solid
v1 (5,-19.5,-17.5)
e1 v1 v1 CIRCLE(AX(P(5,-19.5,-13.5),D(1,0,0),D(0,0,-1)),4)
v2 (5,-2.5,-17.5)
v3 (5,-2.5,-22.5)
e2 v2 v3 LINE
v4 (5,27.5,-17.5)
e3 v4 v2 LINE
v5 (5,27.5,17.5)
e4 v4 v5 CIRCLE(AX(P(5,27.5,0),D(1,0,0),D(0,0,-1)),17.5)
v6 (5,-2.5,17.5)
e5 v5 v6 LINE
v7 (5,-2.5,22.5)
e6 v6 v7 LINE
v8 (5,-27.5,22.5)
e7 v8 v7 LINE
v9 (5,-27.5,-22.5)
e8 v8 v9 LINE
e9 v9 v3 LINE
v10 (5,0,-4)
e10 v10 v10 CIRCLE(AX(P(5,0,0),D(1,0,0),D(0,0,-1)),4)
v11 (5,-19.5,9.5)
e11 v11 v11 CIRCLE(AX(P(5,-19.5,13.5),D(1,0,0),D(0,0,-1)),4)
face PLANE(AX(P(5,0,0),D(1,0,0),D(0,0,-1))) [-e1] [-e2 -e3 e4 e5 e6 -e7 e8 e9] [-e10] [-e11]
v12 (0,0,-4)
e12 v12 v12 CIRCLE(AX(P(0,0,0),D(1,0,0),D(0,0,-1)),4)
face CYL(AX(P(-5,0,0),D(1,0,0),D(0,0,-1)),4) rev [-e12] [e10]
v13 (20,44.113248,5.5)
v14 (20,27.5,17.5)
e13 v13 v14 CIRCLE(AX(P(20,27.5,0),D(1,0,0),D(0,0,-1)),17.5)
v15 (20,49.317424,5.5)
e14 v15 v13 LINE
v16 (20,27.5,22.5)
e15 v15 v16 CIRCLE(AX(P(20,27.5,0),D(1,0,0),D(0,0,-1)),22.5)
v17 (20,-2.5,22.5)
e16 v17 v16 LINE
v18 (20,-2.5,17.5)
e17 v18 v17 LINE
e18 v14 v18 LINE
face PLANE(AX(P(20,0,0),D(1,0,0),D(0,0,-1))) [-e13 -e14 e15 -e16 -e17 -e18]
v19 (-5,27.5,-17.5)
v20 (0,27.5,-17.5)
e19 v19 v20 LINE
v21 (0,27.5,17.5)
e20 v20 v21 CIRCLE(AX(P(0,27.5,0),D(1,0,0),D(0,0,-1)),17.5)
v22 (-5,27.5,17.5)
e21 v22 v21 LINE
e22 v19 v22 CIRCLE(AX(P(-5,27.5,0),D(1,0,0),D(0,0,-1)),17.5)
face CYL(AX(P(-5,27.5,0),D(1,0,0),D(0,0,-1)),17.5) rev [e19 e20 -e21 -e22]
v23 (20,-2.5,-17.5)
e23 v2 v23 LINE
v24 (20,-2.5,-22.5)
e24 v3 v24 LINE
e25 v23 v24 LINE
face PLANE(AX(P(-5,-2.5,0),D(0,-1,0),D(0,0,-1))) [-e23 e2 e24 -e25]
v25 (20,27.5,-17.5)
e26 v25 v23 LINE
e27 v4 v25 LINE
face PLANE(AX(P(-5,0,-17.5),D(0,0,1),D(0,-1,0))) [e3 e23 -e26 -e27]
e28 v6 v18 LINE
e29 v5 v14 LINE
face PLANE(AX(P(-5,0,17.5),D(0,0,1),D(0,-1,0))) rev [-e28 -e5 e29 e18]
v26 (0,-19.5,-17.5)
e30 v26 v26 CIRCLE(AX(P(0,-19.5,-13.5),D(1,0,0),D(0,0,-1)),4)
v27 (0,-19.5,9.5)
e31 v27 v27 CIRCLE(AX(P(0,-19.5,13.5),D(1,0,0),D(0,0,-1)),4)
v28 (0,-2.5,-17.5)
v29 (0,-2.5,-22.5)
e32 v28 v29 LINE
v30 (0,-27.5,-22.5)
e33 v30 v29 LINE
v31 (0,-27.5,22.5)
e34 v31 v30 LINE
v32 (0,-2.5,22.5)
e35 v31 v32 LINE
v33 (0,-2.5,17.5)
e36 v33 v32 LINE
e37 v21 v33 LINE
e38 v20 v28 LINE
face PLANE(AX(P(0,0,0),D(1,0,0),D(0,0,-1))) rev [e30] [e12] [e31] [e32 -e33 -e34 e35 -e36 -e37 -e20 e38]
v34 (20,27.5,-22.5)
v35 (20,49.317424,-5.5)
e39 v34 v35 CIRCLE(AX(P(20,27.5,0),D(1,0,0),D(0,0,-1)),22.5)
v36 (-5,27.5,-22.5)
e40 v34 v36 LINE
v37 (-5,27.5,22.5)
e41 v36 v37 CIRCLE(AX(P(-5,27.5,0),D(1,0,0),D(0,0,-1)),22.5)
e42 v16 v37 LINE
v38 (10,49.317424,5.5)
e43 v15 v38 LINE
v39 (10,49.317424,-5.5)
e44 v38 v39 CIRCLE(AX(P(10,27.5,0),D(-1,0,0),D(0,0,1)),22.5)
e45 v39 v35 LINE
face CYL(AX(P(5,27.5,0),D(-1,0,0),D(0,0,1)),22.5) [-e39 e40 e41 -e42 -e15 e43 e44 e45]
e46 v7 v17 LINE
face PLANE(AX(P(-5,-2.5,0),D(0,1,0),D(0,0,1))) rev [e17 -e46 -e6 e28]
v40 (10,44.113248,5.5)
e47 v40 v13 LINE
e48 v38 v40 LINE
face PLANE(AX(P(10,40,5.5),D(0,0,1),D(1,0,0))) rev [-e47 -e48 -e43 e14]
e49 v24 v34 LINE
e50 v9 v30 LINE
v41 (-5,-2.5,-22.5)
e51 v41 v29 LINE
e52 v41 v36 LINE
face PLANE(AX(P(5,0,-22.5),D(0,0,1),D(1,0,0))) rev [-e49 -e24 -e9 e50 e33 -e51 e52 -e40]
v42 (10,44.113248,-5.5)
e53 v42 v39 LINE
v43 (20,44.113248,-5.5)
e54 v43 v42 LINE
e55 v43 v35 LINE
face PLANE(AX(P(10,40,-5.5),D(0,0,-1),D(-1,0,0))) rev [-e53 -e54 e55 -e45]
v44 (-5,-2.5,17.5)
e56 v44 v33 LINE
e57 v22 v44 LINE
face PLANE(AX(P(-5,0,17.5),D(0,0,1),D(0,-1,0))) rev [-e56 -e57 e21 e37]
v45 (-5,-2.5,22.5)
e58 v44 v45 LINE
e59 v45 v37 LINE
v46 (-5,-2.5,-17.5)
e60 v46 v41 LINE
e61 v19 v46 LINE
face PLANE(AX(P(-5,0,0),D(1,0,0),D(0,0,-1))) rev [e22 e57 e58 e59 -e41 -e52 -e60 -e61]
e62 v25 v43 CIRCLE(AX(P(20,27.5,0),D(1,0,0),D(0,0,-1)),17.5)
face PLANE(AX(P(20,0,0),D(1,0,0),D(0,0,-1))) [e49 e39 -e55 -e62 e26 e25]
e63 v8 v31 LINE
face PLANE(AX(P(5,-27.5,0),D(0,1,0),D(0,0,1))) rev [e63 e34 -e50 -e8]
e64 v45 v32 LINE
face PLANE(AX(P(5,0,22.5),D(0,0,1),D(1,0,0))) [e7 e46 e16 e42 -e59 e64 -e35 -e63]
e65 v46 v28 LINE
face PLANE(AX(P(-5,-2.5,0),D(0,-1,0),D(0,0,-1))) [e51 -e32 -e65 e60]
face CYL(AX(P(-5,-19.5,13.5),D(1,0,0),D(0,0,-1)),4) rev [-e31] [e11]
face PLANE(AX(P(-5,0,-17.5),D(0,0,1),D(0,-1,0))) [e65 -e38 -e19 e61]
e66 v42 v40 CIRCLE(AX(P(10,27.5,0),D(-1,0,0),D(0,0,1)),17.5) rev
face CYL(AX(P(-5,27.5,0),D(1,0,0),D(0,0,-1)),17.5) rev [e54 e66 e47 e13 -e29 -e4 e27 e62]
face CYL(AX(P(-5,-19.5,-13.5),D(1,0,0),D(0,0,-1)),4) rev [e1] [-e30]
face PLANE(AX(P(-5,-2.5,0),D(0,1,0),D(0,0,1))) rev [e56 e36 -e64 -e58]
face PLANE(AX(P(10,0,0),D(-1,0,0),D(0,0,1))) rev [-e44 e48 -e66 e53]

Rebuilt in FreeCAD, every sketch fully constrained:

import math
import FreeCAD as App
import Part
import Sketcher

V = App.Vector


def add_polygon(sketch, points):
    """Adds a closed chain of lines whose ends are joined by coincident constraints."""
    first, n = sketch.GeometryCount, len(points)
    for a, b in zip(points, points[1:] + points[:1]):
        sketch.addGeometry(Part.LineSegment(App.Vector(*a, 0), App.Vector(*b, 0)), False)
    for i in range(n):
        sketch.addConstraint(Sketcher.Constraint("Coincident", first + i, 2, first + (i + 1) % n, 1))

doc = App.newDocument("Part")
body = doc.addObject("PartDesign::Body", "Body")

# Sketch on YZ plane
sketch1 = body.newObject("Sketcher::SketchObject", "Sketch")
sketch1.AttachmentSupport = (doc.getObject("YZ_Plane"), [""])
sketch1.MapMode = "FlatFace"
sketch1.addGeometry([
    Part.ArcOfCircle(Part.Circle(V(28, 0, 0), V(0, 0, 1), 22), math.radians(-90), math.radians(90)),
    Part.LineSegment(V(28, 22, 0), V(-28, 22, 0)),
    Part.LineSegment(V(-28, 22, 0), V(-28, -22, 0)),
    Part.LineSegment(V(-28, -22, 0), V(28, -22, 0)),
], False)
sketch1.addConstraint([
    Sketcher.Constraint("Tangent", 0, 2, 1, 1),
    Sketcher.Constraint("Coincident", 1, 2, 2, 1),
    Sketcher.Constraint("Coincident", 2, 2, 3, 1),
    Sketcher.Constraint("Tangent", 3, 2, 0, 1),
    Sketcher.Constraint("Horizontal", 1),
    Sketcher.Constraint("Vertical", 2),
    Sketcher.Constraint("Horizontal", 3),
    Sketcher.Constraint("Symmetric", 0, 2, 2, 2, -1, 1),
    Sketcher.Constraint("Radius", 0, 22.5),
    Sketcher.Constraint("DistanceX", 1, 2, 1, 1, 55.0),
])
pad1 = body.newObject("PartDesign::Pad", "Pad")
pad1.Profile = sketch1
pad1.Length = 5

# Sketch on YZ plane
sketch2 = body.newObject("Sketcher::SketchObject", "Sketch001")
sketch2.AttachmentSupport = (doc.getObject("YZ_Plane"), [""])
sketch2.MapMode = "FlatFace"
sketch2.addGeometry([
    Part.ArcOfCircle(Part.Circle(V(28, 0, 0), V(0, 0, 1), 18), math.radians(-90), math.radians(90)),  # 0
    Part.LineSegment(V(28, -18, 0), V(-2, -18, 0)),  # 1
    Part.LineSegment(V(-2, -18, 0), V(-2, -22, 0)),  # 2
    Part.LineSegment(V(-2, -22, 0), V(28, -22, 0)),  # 3
    Part.ArcOfCircle(Part.Circle(V(28, 0, 0), V(0, 0, 1), 22), math.radians(-90), math.radians(90)),  # 4
    Part.LineSegment(V(28, 22, 0), V(-2, 22, 0)),  # 5
    Part.LineSegment(V(-2, 22, 0), V(-2, 18, 0)),  # 6
    Part.LineSegment(V(-2, 18, 0), V(28, 18, 0)),  # 7
], False)
sketch2.addConstraint([
    Sketcher.Constraint("Tangent", 0, 1, 1, 1),
    Sketcher.Constraint("Coincident", 1, 2, 2, 1),
    Sketcher.Constraint("Coincident", 2, 2, 3, 1),
    Sketcher.Constraint("Tangent", 3, 2, 4, 1),
    Sketcher.Constraint("Tangent", 4, 2, 5, 1),
    Sketcher.Constraint("Coincident", 5, 2, 6, 1),
    Sketcher.Constraint("Coincident", 6, 2, 7, 1),
    Sketcher.Constraint("Tangent", 7, 2, 0, 2),
    Sketcher.Constraint("Horizontal", 1),
    Sketcher.Constraint("Vertical", 2),
    Sketcher.Constraint("Horizontal", 3),
    Sketcher.Constraint("Horizontal", 5),
    Sketcher.Constraint("Vertical", 6),
    Sketcher.Constraint("Horizontal", 7),
    Sketcher.Constraint("Coincident", 4, 3, 0, 3),
    Sketcher.Constraint("Symmetric", 2, 2, 5, 2, -1),
    Sketcher.Constraint("Radius", 0, 17.5),
    Sketcher.Constraint("Radius", 4, 22.5),
    Sketcher.Constraint("DistanceX", 1, 2, 1, 1, 30.0),
    Sketcher.Constraint("DistanceX", -1, 1, 0, 3, 27.5),
])
pad2 = body.newObject("PartDesign::Pad", "Pad001")
pad2.Profile = sketch2
pad2.Type = "TwoLengths"
pad2.Length = 20
pad2.Length2 = 5

# Sketch on YZ plane
sketch3 = body.newObject("Sketcher::SketchObject", "Sketch002")
sketch3.AttachmentSupport = (doc.getObject("YZ_Plane"), [""])
sketch3.MapMode = "FlatFace"
sketch3.AttachmentOffset = App.Placement(V(0, 0, 5), App.Rotation())
sketch3.addGeometry([
    Part.Circle(V(-19.5, 13.5, 0), V(0, 0, 1), 4),
    Part.Circle(V(-19.5, -13.5, 0), V(0, 0, 1), 4),
    Part.Circle(V(0, 0, 0), V(0, 0, 1), 4),
], False)
sketch3.addConstraint([
    Sketcher.Constraint("Coincident", 2, 3, -1, 1),
    Sketcher.Constraint("Equal", 0, 1),
    Sketcher.Constraint("Equal", 1, 2),
    Sketcher.Constraint("Symmetric", 0, 3, 1, 3, -1),
    Sketcher.Constraint("Diameter", 0, 8.0),
    Sketcher.Constraint("DistanceY", 1, 3, 0, 3, 27.0),
    Sketcher.Constraint("DistanceX", 0, 3, -1, 1, 19.5),
])
pocket1 = body.newObject("PartDesign::Pocket", "Pocket")
pocket1.Profile = sketch3
pocket1.Type = "ThroughAll"

# Sketch on YZ plane
sketch4 = body.newObject("Sketcher::SketchObject", "Sketch003")
sketch4.AttachmentSupport = (doc.getObject("YZ_Plane"), [""])
sketch4.MapMode = "FlatFace"
sketch4.AttachmentOffset = App.Placement(V(0, 0, 20), App.Rotation())
add_polygon(sketch4, [(55, 6), (40, 6), (40, -6), (55, -6)])  # lines 0-3
sketch4.addConstraint([
    Sketcher.Constraint("Horizontal", 0),
    Sketcher.Constraint("Vertical", 1),
    Sketcher.Constraint("Horizontal", 2),
    Sketcher.Constraint("Vertical", 3),
    Sketcher.Constraint("DistanceX", 0, 2, 0, 1, 15.0),
    Sketcher.Constraint("DistanceY", 1, 2, 1, 1, 11.0),
    Sketcher.Constraint("DistanceX", -1, 1, 0, 2, 40.0),
    Sketcher.Constraint("DistanceY", -1, 1, 0, 2, 5.5),
])
pocket2 = body.newObject("PartDesign::Pocket", "Pocket001")
pocket2.Profile = sketch4
pocket2.Length = 10

doc.recompute()
